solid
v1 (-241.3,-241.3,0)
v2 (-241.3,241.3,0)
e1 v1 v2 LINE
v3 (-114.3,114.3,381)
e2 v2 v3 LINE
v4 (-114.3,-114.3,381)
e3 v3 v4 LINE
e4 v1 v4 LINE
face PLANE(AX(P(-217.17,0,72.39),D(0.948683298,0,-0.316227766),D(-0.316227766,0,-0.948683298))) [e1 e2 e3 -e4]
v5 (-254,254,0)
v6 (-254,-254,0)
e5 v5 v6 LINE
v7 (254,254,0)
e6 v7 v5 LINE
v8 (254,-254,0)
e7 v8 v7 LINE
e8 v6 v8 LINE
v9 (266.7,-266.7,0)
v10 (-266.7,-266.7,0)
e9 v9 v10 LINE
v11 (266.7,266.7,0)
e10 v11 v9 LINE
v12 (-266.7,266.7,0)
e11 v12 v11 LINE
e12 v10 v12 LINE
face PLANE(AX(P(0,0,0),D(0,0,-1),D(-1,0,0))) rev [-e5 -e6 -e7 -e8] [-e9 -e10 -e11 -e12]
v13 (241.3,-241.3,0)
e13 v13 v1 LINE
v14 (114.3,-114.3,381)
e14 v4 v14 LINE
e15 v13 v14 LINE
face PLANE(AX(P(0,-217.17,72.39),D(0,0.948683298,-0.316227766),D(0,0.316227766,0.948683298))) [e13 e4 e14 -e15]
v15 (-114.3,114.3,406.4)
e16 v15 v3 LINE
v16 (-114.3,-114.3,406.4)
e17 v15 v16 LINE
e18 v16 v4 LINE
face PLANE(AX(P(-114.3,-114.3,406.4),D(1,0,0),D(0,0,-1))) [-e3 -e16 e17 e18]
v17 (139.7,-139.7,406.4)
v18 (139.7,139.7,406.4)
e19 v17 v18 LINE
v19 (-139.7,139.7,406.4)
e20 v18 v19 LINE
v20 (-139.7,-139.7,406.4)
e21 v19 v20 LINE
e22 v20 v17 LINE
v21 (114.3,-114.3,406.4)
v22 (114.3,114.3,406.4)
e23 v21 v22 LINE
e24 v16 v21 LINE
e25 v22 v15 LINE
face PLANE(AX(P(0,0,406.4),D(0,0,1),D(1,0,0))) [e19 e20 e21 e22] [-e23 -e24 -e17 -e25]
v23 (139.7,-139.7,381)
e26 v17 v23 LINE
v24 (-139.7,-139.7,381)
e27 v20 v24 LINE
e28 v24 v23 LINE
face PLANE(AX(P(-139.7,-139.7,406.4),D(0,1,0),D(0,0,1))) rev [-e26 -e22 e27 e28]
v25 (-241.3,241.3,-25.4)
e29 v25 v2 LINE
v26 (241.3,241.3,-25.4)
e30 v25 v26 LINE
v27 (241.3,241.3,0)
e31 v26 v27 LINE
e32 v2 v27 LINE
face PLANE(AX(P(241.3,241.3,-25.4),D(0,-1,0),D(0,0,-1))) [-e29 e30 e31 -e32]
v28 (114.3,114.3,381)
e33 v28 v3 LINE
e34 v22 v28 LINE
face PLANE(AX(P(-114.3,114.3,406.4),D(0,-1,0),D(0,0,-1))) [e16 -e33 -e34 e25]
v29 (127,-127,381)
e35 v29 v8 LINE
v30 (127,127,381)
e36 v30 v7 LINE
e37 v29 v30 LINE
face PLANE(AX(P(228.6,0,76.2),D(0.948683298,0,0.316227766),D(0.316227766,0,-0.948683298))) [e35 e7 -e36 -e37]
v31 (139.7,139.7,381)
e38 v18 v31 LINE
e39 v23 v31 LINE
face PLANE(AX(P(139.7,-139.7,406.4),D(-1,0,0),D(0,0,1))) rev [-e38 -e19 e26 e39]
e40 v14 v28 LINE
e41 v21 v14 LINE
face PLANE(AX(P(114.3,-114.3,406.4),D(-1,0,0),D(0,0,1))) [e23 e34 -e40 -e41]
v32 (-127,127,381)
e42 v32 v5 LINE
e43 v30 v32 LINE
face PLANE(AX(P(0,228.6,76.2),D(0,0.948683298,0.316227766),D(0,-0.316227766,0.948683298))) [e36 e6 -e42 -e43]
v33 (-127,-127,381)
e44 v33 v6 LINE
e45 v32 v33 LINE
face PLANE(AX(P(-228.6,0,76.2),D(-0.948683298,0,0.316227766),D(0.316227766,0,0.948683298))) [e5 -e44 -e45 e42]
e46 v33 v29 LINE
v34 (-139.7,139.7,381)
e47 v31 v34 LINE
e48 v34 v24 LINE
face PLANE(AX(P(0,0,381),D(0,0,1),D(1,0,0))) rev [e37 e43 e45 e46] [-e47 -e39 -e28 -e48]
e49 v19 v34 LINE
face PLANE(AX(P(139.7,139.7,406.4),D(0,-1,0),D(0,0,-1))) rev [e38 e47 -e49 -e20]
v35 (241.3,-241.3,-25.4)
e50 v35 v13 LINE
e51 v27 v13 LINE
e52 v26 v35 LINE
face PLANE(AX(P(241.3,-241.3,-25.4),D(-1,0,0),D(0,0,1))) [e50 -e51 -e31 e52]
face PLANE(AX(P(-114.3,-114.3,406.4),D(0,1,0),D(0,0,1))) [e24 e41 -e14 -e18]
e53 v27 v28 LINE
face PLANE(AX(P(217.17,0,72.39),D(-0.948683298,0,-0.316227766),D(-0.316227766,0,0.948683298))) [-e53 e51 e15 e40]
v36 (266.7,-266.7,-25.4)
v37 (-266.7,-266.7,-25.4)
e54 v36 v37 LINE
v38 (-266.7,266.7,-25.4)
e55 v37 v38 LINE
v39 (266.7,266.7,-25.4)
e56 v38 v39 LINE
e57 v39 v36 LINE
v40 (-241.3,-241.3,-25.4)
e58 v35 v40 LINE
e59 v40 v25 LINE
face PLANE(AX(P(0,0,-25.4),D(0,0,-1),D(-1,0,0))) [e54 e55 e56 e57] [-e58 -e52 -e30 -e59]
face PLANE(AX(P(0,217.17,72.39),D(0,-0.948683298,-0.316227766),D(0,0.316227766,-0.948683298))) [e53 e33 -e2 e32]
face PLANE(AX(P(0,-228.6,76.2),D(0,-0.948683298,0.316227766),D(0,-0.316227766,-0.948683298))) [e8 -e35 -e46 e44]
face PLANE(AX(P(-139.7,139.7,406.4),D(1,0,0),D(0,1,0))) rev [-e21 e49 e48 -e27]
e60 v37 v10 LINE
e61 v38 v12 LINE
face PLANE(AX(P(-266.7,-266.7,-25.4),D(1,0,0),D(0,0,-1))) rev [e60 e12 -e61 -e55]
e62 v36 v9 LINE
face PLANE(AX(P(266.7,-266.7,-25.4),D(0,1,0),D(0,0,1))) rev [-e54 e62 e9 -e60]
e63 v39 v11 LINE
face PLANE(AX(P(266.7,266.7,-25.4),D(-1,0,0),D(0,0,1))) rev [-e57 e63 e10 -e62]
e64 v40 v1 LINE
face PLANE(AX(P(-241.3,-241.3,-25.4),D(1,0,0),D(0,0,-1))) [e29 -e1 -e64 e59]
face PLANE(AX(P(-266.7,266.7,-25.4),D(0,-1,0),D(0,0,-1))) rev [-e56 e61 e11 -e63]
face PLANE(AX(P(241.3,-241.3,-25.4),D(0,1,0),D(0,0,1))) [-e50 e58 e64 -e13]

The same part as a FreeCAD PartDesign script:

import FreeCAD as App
import Part
import Sketcher

V = App.Vector
Q = App.Units.Quantity

doc = App.newDocument("Part")
body = doc.addObject("PartDesign::Body", "Body")

# Sketch on XY plane
sketch1 = body.newObject("Sketcher::SketchObject", "Sketch")
sketch1.AttachmentSupport = (doc.getObject("XY_Plane"), [""])
sketch1.MapMode = "FlatFace"
sketch1.AttachmentOffset = App.Placement(V(0, 0, 15 * 25.4), App.Rotation())
sketch1.addGeometry([
    Part.LineSegment(V(-127, -127, 0), V(127, -127, 0)),
    Part.LineSegment(V(127, -127, 0), V(127, 127, 0)),
    Part.LineSegment(V(127, 127, 0), V(-127, 127, 0)),
    Part.LineSegment(V(-127, 127, 0), V(-127, -127, 0)),
], False)
sketch1.addConstraint([
    Sketcher.Constraint("Coincident", 0, 2, 1, 1),
    Sketcher.Constraint("Coincident", 1, 2, 2, 1),
    Sketcher.Constraint("Coincident", 2, 2, 3, 1),
    Sketcher.Constraint("Coincident", 3, 2, 0, 1),
    Sketcher.Constraint("Horizontal", 0),
    Sketcher.Constraint("Vertical", 1),
    Sketcher.Constraint("Horizontal", 2),
    Sketcher.Constraint("Vertical", 3),
    Sketcher.Constraint("Symmetric", 0, 2, 2, 2, -1, 1),
    Sketcher.Constraint("Equal", 2, 1),
    Sketcher.Constraint("DistanceX", 0, 1, 0, 2, Q("10 in")),
])

# Sketch on XY plane
sketch2 = body.newObject("Sketcher::SketchObject", "Sketch001")
sketch2.AttachmentSupport = (doc.getObject("XY_Plane"), [""])
sketch2.MapMode = "FlatFace"
sketch2.addGeometry([
    Part.LineSegment(V(-254, -254, 0), V(254, -254, 0)),
    Part.LineSegment(V(254, -254, 0), V(254, 254, 0)),
    Part.LineSegment(V(254, 254, 0), V(-254, 254, 0)),
    Part.LineSegment(V(-254, 254, 0), V(-254, -254, 0)),
], False)
sketch2.addConstraint([
    Sketcher.Constraint("Coincident", 0, 2, 1, 1),
    Sketcher.Constraint("Coincident", 1, 2, 2, 1),
    Sketcher.Constraint("Coincident", 2, 2, 3, 1),
    Sketcher.Constraint("Coincident", 3, 2, 0, 1),
    Sketcher.Constraint("Horizontal", 0),
    Sketcher.Constraint("Vertical", 1),
    Sketcher.Constraint("Horizontal", 2),
    Sketcher.Constraint("Vertical", 3),
    Sketcher.Constraint("Symmetric", 0, 2, 2, 2, -1, 1),
    Sketcher.Constraint("Equal", 2, 1),
    Sketcher.Constraint("DistanceX", 0, 1, 0, 2, Q("20 in")),
])

additiveloft = body.newObject("PartDesign::AdditiveLoft", "AdditiveLoft")
additiveloft.Profile = sketch1
additiveloft.Sections = [sketch2]

# Sketch on XY plane
sketch3 = body.newObject("Sketcher::SketchObject", "Sketch002")
sketch3.AttachmentSupport = (doc.getObject("XY_Plane"), [""])
sketch3.MapMode = "FlatFace"
sketch3.addGeometry([
    Part.LineSegment(V(-241.3, -241.3, 0), V(-241.3, 241.3, 0)),
    Part.LineSegment(V(-241.3, 241.3, 0), V(241.3, 241.3, 0)),
    Part.LineSegment(V(241.3, 241.3, 0), V(241.3, -241.3, 0)),
    Part.LineSegment(V(241.3, -241.3, 0), V(-241.3, -241.3, 0)),
], False)
sketch3.addConstraint([
    Sketcher.Constraint("Coincident", 0, 2, 1, 1),
    Sketcher.Constraint("Coincident", 1, 2, 2, 1),
    Sketcher.Constraint("Coincident", 2, 2, 3, 1),
    Sketcher.Constraint("Coincident", 3, 2, 0, 1),
    Sketcher.Constraint("Vertical", 0),
    Sketcher.Constraint("Horizontal", 1),
    Sketcher.Constraint("Vertical", 2),
    Sketcher.Constraint("Horizontal", 3),
    Sketcher.Constraint("Symmetric", 0, 2, 2, 2, -1, 1),
    Sketcher.Constraint("Equal", 3, 0),
    Sketcher.Constraint("DistanceX", 1, 1, 1, 2, Q("19 in")),
])

# Sketch on XY plane
sketch4 = body.newObject("Sketcher::SketchObject", "Sketch003")
sketch4.AttachmentSupport = (doc.getObject("XY_Plane"), [""])
sketch4.MapMode = "FlatFace"
sketch4.AttachmentOffset = App.Placement(V(0, 0, 15 * 25.4), App.Rotation())
sketch4.addGeometry([
    Part.LineSegment(V(114.3, -114.3, 0), V(114.3, 114.3, 0)),
    Part.LineSegment(V(114.3, 114.3, 0), V(-114.3, 114.3, 0)),
    Part.LineSegment(V(-114.3, 114.3, 0), V(-114.3, -114.3, 0)),
    Part.LineSegment(V(-114.3, -114.3, 0), V(114.3, -114.3, 0)),
], False)
sketch4.addConstraint([
    Sketcher.Constraint("Coincident", 0, 2, 1, 1),
    Sketcher.Constraint("Coincident", 1, 2, 2, 1),
    Sketcher.Constraint("Coincident", 2, 2, 3, 1),
    Sketcher.Constraint("Coincident", 3, 2, 0, 1),
    Sketcher.Constraint("Vertical", 0),
    Sketcher.Constraint("Horizontal", 1),
    Sketcher.Constraint("Vertical", 2),
    Sketcher.Constraint("Horizontal", 3),
    Sketcher.Constraint("Symmetric", 0, 2, 2, 2, -1, 1),
    Sketcher.Constraint("Equal", 3, 0),
    Sketcher.Constraint("DistanceX", 1, 2, 1, 1, Q("9 in")),
])

subtractiveloft = body.newObject("PartDesign::SubtractiveLoft", "SubtractiveLoft")
subtractiveloft.Profile = sketch3
subtractiveloft.Sections = [sketch4]

# Sketch on XY plane
sketch5 = body.newObject("Sketcher::SketchObject", "Sketch004")
sketch5.AttachmentSupport = (doc.getObject("XY_Plane"), [""])
sketch5.MapMode = "FlatFace"
sketch5.AttachmentOffset = App.Placement(V(0, 0, 15 * 25.4), App.Rotation())
sketch5.addGeometry([
    Part.LineSegment(V(-139.7, 139.7, 0), V(-139.7, -139.7, 0)),  # 0
    Part.LineSegment(V(-139.7, -139.7, 0), V(139.7, -139.7, 0)),  # 1
    Part.LineSegment(V(139.7, -139.7, 0), V(139.7, 139.7, 0)),  # 2
    Part.LineSegment(V(139.7, 139.7, 0), V(-139.7, 139.7, 0)),  # 3
    Part.LineSegment(V(114.3, -114.3, 0), V(-114.3, -114.3, 0)),  # 4
    Part.LineSegment(V(-114.3, -114.3, 0), V(-114.3, 114.3, 0)),  # 5
    Part.LineSegment(V(-114.3, 114.3, 0), V(114.3, 114.3, 0)),  # 6
    Part.LineSegment(V(114.3, 114.3, 0), V(114.3, -114.3, 0)),  # 7
], False)
sketch5.addConstraint([
    Sketcher.Constraint("Coincident", 0, 2, 1, 1),
    Sketcher.Constraint("Coincident", 1, 2, 2, 1),
    Sketcher.Constraint("Coincident", 2, 2, 3, 1),
    Sketcher.Constraint("Coincident", 3, 2, 0, 1),
    Sketcher.Constraint("Coincident", 4, 2, 5, 1),
    Sketcher.Constraint("Coincident", 5, 2, 6, 1),
    Sketcher.Constraint("Coincident", 6, 2, 7, 1),
    Sketcher.Constraint("Coincident", 7, 2, 4, 1),
    Sketcher.Constraint("Vertical", 0),
    Sketcher.Constraint("Horizontal", 1),
    Sketcher.Constraint("Vertical", 2),
    Sketcher.Constraint("Horizontal", 3),
    Sketcher.Constraint("Horizontal", 4),
    Sketcher.Constraint("Vertical", 5),
    Sketcher.Constraint("Horizontal", 6),
    Sketcher.Constraint("Vertical", 7),
    Sketcher.Constraint("Symmetric", 0, 2, 2, 2, -1, 1),
    Sketcher.Constraint("Symmetric", 4, 2, 6, 2, -1, 1),
    Sketcher.Constraint("Equal", 3, 0),
    Sketcher.Constraint("Equal", 6, 5),
    Sketcher.Constraint("DistanceX", 1, 1, 1, 2, Q("11 in")),
    Sketcher.Constraint("DistanceX", 4, 2, 4, 1, Q("9 in")),
])
pad1 = body.newObject("PartDesign::Pad", "Pad")
pad1.Profile = sketch5
pad1.Length = Q("1 in")

# Sketch on XY plane
sketch6 = body.newObject("Sketcher::SketchObject", "Sketch005")
sketch6.AttachmentSupport = (doc.getObject("XY_Plane"), [""])
sketch6.MapMode = "FlatFace"
sketch6.addGeometry([
    Part.LineSegment(V(266.7, 266.7, 0), V(266.7, -266.7, 0)),  # 0
    Part.LineSegment(V(266.7, -266.7, 0), V(-266.7, -266.7, 0)),  # 1
    Part.LineSegment(V(-266.7, -266.7, 0), V(-266.7, 266.7, 0)),  # 2
    Part.LineSegment(V(-266.7, 266.7, 0), V(266.7, 266.7, 0)),  # 3
    Part.LineSegment(V(-241.3, -241.3, 0), V(241.3, -241.3, 0)),  # 4
    Part.LineSegment(V(241.3, -241.3, 0), V(241.3, 241.3, 0)),  # 5
    Part.LineSegment(V(241.3, 241.3, 0), V(-241.3, 241.3, 0)),  # 6
    Part.LineSegment(V(-241.3, 241.3, 0), V(-241.3, -241.3, 0)),  # 7
], False)
sketch6.addConstraint([
    Sketcher.Constraint("Coincident", 0, 2, 1, 1),
    Sketcher.Constraint("Coincident", 1, 2, 2, 1),
    Sketcher.Constraint("Coincident", 2, 2, 3, 1),
    Sketcher.Constraint("Coincident", 3, 2, 0, 1),
    Sketcher.Constraint("Coincident", 4, 2, 5, 1),
    Sketcher.Constraint("Coincident", 5, 2, 6, 1),
    Sketcher.Constraint("Coincident", 6, 2, 7, 1),
    Sketcher.Constraint("Coincident", 7, 2, 4, 1),
    Sketcher.Constraint("Vertical", 0),
    Sketcher.Constraint("Horizontal", 1),
    Sketcher.Constraint("Vertical", 2),
    Sketcher.Constraint("Horizontal", 3),
    Sketcher.Constraint("Horizontal", 4),
    Sketcher.Constraint("Vertical", 5),
    Sketcher.Constraint("Horizontal", 6),
    Sketcher.Constraint("Vertical", 7),
    Sketcher.Constraint("Symmetric", 0, 2, 2, 2, -1, 1),
    Sketcher.Constraint("Symmetric", 4, 2, 6, 2, -1, 1),
    Sketcher.Constraint("Equal", 3, 0),
    Sketcher.Constraint("Equal", 6, 5),
    Sketcher.Constraint("DistanceX", 1, 2, 1, 1, Q("21 in")),
    Sketcher.Constraint("DistanceX", 4, 1, 4, 2, Q("19 in")),
])
pad2 = body.newObject("PartDesign::Pad", "Pad001")
pad2.Profile = sketch6
pad2.Length = Q("1 in")
pad2.Reversed = True

doc.recompute()
